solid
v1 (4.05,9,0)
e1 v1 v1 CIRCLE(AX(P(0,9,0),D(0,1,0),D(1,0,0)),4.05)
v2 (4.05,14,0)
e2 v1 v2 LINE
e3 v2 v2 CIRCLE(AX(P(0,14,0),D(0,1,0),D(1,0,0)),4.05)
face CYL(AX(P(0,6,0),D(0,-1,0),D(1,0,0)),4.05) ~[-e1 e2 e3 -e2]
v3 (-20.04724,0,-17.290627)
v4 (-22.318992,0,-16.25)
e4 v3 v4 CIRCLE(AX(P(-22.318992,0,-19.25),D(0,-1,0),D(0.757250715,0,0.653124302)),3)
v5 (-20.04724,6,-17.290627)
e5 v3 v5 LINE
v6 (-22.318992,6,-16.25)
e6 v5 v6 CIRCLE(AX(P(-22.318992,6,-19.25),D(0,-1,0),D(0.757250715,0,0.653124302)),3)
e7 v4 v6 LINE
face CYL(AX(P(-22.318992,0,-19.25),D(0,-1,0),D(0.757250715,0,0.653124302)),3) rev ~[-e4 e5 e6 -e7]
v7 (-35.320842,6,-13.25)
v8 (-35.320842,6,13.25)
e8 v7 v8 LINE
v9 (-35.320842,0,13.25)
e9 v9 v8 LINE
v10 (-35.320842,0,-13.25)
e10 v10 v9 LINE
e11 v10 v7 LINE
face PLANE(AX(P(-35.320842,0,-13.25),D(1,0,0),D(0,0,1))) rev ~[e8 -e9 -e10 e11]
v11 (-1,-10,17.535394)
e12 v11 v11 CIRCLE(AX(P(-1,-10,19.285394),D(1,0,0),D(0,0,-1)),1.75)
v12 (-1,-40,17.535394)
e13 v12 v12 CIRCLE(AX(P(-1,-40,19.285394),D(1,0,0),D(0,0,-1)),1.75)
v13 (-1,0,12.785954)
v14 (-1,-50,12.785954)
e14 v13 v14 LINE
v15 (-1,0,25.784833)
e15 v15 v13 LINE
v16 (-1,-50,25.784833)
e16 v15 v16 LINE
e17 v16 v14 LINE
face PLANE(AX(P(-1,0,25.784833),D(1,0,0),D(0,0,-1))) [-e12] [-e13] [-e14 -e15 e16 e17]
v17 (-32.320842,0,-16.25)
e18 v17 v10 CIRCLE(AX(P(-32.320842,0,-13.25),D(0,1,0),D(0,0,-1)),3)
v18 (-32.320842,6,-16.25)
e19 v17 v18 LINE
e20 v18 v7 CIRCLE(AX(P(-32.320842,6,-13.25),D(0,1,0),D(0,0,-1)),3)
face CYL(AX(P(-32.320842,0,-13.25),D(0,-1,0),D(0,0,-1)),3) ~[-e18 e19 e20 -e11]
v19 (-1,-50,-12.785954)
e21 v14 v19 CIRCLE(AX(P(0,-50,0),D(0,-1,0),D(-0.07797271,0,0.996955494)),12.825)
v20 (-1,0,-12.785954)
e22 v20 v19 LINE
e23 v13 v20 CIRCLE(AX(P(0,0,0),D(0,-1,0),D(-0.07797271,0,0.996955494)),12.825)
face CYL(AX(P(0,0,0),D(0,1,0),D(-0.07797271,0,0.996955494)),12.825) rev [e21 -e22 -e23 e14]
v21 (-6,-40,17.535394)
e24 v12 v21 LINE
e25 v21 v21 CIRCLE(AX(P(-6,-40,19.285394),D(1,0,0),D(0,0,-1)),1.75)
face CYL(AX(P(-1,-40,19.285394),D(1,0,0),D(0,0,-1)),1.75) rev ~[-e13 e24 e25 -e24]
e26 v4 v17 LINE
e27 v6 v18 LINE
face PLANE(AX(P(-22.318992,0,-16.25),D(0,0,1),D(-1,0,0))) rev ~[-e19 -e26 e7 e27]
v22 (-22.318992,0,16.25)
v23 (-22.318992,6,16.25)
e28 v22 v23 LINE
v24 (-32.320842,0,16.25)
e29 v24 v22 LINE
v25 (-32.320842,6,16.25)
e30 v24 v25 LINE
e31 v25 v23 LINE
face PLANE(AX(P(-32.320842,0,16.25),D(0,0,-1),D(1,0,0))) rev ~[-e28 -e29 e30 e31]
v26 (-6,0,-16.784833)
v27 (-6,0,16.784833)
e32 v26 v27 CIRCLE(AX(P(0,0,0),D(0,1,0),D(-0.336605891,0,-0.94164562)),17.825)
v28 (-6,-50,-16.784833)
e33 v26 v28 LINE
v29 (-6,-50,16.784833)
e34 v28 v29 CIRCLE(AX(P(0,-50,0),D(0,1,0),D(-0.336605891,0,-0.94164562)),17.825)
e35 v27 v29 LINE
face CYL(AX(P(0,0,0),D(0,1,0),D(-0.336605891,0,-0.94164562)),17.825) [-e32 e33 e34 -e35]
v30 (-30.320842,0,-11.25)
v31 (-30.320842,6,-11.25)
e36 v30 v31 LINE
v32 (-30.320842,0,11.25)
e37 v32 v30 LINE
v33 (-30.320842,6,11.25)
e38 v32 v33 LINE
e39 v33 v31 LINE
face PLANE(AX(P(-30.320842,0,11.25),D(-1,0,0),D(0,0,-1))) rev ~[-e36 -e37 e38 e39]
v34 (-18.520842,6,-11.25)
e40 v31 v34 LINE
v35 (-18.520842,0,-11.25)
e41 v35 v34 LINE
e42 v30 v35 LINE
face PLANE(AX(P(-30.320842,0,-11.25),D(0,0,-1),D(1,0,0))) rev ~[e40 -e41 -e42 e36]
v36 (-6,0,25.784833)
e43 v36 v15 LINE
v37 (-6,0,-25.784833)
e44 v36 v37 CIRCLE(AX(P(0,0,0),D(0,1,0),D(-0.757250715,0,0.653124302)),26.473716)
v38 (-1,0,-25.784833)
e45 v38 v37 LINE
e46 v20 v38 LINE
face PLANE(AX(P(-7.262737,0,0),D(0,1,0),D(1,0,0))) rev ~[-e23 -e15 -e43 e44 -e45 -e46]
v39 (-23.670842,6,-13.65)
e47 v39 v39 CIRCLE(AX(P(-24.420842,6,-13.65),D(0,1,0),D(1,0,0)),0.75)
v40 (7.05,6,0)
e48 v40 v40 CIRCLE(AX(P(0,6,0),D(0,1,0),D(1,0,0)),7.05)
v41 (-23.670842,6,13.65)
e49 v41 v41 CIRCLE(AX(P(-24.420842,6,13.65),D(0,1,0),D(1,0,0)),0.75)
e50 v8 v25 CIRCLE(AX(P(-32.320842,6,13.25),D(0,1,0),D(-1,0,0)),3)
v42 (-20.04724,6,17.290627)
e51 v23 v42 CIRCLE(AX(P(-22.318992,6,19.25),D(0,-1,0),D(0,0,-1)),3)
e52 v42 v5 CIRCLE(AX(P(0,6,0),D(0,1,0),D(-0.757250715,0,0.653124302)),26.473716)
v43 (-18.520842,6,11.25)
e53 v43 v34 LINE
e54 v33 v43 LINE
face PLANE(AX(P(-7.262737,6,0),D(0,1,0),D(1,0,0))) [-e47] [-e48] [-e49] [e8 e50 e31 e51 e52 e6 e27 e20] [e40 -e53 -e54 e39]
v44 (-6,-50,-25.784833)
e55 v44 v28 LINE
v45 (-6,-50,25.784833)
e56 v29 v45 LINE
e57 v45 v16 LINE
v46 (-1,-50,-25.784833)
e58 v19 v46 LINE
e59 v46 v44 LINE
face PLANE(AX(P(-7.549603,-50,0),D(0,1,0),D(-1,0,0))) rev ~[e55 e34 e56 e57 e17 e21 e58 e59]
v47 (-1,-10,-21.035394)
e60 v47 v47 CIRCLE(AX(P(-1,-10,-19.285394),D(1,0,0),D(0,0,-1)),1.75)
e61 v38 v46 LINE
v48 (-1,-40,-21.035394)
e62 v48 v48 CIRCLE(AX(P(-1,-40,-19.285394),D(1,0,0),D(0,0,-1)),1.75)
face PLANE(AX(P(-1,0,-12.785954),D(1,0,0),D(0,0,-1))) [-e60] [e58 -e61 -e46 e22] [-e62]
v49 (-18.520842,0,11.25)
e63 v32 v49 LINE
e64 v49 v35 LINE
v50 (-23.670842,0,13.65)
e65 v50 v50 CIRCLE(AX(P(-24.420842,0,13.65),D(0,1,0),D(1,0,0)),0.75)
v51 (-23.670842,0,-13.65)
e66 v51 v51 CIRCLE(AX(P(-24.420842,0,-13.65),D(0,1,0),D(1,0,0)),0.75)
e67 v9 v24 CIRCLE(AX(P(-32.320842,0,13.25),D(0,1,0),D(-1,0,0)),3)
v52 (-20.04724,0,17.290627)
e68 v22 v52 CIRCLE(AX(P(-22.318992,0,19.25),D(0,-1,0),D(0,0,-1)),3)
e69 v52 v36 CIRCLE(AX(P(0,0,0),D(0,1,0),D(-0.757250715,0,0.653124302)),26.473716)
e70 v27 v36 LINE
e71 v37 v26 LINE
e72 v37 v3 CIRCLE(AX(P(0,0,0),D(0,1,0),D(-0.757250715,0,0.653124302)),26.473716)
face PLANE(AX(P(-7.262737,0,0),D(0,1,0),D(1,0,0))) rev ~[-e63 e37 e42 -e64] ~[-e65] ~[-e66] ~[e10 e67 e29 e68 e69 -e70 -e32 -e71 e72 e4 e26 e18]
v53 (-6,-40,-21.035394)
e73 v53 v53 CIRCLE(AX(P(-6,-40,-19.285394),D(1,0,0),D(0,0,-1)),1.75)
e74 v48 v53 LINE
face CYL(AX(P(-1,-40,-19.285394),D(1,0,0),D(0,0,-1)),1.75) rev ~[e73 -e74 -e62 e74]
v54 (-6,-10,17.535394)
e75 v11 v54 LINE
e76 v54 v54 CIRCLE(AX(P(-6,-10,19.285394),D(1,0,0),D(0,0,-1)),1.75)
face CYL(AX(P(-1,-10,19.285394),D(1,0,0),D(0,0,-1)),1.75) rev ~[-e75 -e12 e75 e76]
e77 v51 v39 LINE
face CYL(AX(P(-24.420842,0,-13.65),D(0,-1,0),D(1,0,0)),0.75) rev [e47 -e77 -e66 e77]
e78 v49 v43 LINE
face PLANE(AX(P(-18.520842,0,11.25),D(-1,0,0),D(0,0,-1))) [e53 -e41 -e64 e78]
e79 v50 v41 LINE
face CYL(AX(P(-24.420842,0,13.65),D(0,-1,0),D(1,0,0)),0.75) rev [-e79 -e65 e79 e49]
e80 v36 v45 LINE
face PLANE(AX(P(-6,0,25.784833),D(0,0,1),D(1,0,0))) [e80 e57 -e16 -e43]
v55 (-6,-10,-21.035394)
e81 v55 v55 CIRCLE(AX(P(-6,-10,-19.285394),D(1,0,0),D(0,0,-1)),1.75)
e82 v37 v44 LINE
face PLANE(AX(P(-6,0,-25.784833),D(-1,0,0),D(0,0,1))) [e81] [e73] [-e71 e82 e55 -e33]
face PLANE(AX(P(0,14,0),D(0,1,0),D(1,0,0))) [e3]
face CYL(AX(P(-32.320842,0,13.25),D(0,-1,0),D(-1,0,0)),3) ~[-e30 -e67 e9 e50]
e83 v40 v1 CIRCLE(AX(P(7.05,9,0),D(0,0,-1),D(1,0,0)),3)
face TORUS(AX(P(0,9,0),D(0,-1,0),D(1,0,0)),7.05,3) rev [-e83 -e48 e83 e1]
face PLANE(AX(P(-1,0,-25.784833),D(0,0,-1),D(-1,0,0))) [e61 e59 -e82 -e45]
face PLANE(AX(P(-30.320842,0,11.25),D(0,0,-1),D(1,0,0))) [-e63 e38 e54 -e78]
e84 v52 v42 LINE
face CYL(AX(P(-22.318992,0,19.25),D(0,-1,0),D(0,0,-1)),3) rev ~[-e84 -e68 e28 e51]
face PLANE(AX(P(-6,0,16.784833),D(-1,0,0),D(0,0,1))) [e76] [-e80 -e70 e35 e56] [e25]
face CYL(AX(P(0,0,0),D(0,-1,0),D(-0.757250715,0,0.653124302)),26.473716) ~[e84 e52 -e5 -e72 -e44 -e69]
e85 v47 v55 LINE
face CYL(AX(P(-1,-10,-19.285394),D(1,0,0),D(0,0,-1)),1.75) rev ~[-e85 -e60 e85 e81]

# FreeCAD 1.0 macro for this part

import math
import FreeCAD as App
import Part
import Sketcher


def edges_at(feature, points):
    """Names of the edges that pass closest to the given points."""
    edges = feature.Shape.Edges
    near = lambda p: min(range(len(edges)), key=lambda i: edges[i].distToShape(Part.Vertex(*p))[0])
    return sorted({f"Edge{near(p) + 1}" for p in points})


def add_polygon(sketch, points):
    """Adds a closed chain of lines whose ends are joined by coincident constraints."""
    first, n = sketch.GeometryCount, len(points)
    for a, b in zip(points, points[1:] + points[:1]):
        sketch.addGeometry(Part.LineSegment(App.Vector(*a, 0), App.Vector(*b, 0)), False)
    for i in range(n):
        sketch.addConstraint(Sketcher.Constraint("Coincident", first + i, 2, first + (i + 1) % n, 1))

doc = App.newDocument("Part")
body = doc.addObject("PartDesign::Body", "Body")

# Sketch on XZ plane
sketch1 = body.newObject("Sketcher::SketchObject", "Sketch")
sketch1.AttachmentSupport = (doc.getObject("XZ_Plane"), [""])
sketch1.MapMode = "FlatFace"
sketch1.addGeometry(Part.LineSegment(App.Vector(-1, 13, 0), App.Vector(-1, 26, 0)), False)
sketch1.addGeometry(Part.LineSegment(App.Vector(-1, 26, 0), App.Vector(-6, 26, 0)), False)
sketch1.addGeometry(Part.LineSegment(App.Vector(-6, 26, 0), App.Vector(-6, 17, 0)), False)
sketch1.addGeometry(Part.ArcOfCircle(Part.Circle(App.Vector(0, 0, 0), App.Vector(0, 0, 1), 18), math.radians(110), math.radians(250)), False)
sketch1.addGeometry(Part.LineSegment(App.Vector(-6, -17, 0), App.Vector(-6, -26, 0)), False)
sketch1.addGeometry(Part.LineSegment(App.Vector(-6, -26, 0), App.Vector(-1, -26, 0)), False)
sketch1.addGeometry(Part.LineSegment(App.Vector(-1, -26, 0), App.Vector(-1, -13, 0)), False)
sketch1.addGeometry(Part.ArcOfCircle(Part.Circle(App.Vector(0, 0, 0), App.Vector(0, 0, 1), 13), math.radians(94), math.radians(266)), False)
sketch1.addConstraint(Sketcher.Constraint("Coincident", 0, 2, 1, 1))
sketch1.addConstraint(Sketcher.Constraint("Coincident", 1, 2, 2, 1))
sketch1.addConstraint(Sketcher.Constraint("Coincident", 2, 2, 3, 1))
sketch1.addConstraint(Sketcher.Constraint("Coincident", 3, 2, 4, 1))
sketch1.addConstraint(Sketcher.Constraint("Coincident", 4, 2, 5, 1))
sketch1.addConstraint(Sketcher.Constraint("Coincident", 5, 2, 6, 1))
sketch1.addConstraint(Sketcher.Constraint("Coincident", 6, 2, 7, 2))
sketch1.addConstraint(Sketcher.Constraint("Coincident", 7, 1, 0, 1))
sketch1.addConstraint(Sketcher.Constraint("Vertical", 0))
sketch1.addConstraint(Sketcher.Constraint("Horizontal", 1))
sketch1.addConstraint(Sketcher.Constraint("Vertical", 2))
sketch1.addConstraint(Sketcher.Constraint("Vertical", 4))
sketch1.addConstraint(Sketcher.Constraint("Horizontal", 5))
sketch1.addConstraint(Sketcher.Constraint("Vertical", 6))
sketch1.addConstraint(Sketcher.Constraint("Coincident", 3, 3, -1, 1))
sketch1.addConstraint(Sketcher.Constraint("Coincident", 7, 3, -1, 1))
sketch1.addConstraint(Sketcher.Constraint("Symmetric", 1, 2, 4, 2, -1))
sketch1.addConstraint(Sketcher.Constraint("Vertical", 0, 2, 5, 2))
sketch1.addConstraint(Sketcher.Constraint("DistanceX", 1, 2, 1, 1, 5.0))
sketch1.addConstraint(Sketcher.Constraint("DistanceY", 2, 2, 2, 1, 9.0))
sketch1.addConstraint(Sketcher.Constraint("DistanceX", 0, 2, -1, 1, 1.0))
sketch1.addConstraint(Sketcher.Constraint("Radius", 3, 17.825))
sketch1.addConstraint(Sketcher.Constraint("Radius", 7, 12.825))
pad1 = body.newObject("PartDesign::Pad", "Pad")
pad1.Profile = sketch1
pad1.Length = 50

# Sketch on YZ plane
sketch2 = body.newObject("Sketcher::SketchObject", "Sketch001")
sketch2.AttachmentSupport = (doc.getObject("YZ_Plane"), [""])
sketch2.MapMode = "FlatFace"
sketch2.AttachmentOffset = App.Placement(App.Vector(0, 0, -1), App.Rotation())
sketch2.addGeometry(Part.Circle(App.Vector(-10, 19.3, 0), App.Vector(0, 0, 1), 1.8), False)
sketch2.addGeometry(Part.Circle(App.Vector(-40, 19.3, 0), App.Vector(0, 0, 1), 1.8), False)
sketch2.addGeometry(Part.Circle(App.Vector(-40, -19.3, 0), App.Vector(0, 0, 1), 1.8), False)
sketch2.addGeometry(Part.Circle(App.Vector(-10, -19.3, 0), App.Vector(0, 0, 1), 1.8), False)
sketch2.addConstraint(Sketcher.Constraint("Equal", 0, 1))
sketch2.addConstraint(Sketcher.Constraint("Equal", 1, 2))
sketch2.addConstraint(Sketcher.Constraint("Equal", 2, 3))
sketch2.addConstraint(Sketcher.Constraint("Symmetric", 1, 3, 2, 3, -1))
sketch2.addConstraint(Sketcher.Constraint("Symmetric", 0, 3, 3, 3, -1))
sketch2.addConstraint(Sketcher.Constraint("Horizontal", 0, 3, 1, 3))
sketch2.addConstraint(Sketcher.Constraint("Diameter", 0, 3.5))
sketch2.addConstraint(Sketcher.Constraint("DistanceX", 0, 3, -1, 1, 10.0))
sketch2.addConstraint(Sketcher.Constraint("DistanceX", 1, 3, -1, 1, 40.0))
sketch2.addConstraint(Sketcher.Constraint("DistanceY", -1, 1, 0, 3, 19.285394))
pocket1 = body.newObject("PartDesign::Pocket", "Pocket")
pocket1.Profile = sketch2
pocket1.Type = "ThroughAll"

# Sketch on XZ plane
sketch3 = body.newObject("Sketcher::SketchObject", "Sketch002")
sketch3.AttachmentSupport = (doc.getObject("XZ_Plane"), [""])
sketch3.MapMode = "FlatFace"
sketch3.addGeometry(Part.LineSegment(App.Vector(-32.3, 16.2, 0), App.Vector(-22.3, 16.2, 0)), False)  # 0
sketch3.addGeometry(Part.ArcOfCircle(Part.Circle(App.Vector(-22.3, 19.3, 0), App.Vector(0, 0, 1), 3), math.radians(-90), math.radians(-41)), False)  # 1
sketch3.addGeometry(Part.ArcOfCircle(Part.Circle(App.Vector(0, 0, 0), App.Vector(0, 0, 1), 26.5), math.radians(-139), math.radians(139)), False)  # 2
sketch3.addGeometry(Part.ArcOfCircle(Part.Circle(App.Vector(-22.3, -19.3, 0), App.Vector(0, 0, 1), 3), math.radians(41), math.radians(90)), False)  # 3
sketch3.addGeometry(Part.LineSegment(App.Vector(-22.3, -16.2, 0), App.Vector(-32.3, -16.2, 0)), False)  # 4
sketch3.addGeometry(Part.ArcOfCircle(Part.Circle(App.Vector(-32.3, -13.2, 0), App.Vector(0, 0, 1), 3), math.radians(180), math.radians(270)), False)  # 5
sketch3.addGeometry(Part.LineSegment(App.Vector(-35.3, -13.2, 0), App.Vector(-35.3, 13.2, 0)), False)  # 6
sketch3.addGeometry(Part.ArcOfCircle(Part.Circle(App.Vector(-32.3, 13.2, 0), App.Vector(0, 0, 1), 3), math.radians(90), math.radians(180)), False)  # 7
sketch3.addGeometry(Part.Circle(App.Vector(-24.4, 13.7, 0), App.Vector(0, 0, 1), 0.8), False)  # 8
add_polygon(sketch3, [(-18.5, 11.2), (-30.3, 11.2), (-30.3, -11.2), (-18.5, -11.2)])  # lines 9-12
sketch3.addGeometry(Part.Circle(App.Vector(-24.4, -13.7, 0), App.Vector(0, 0, 1), 0.8), False)  # 13
sketch3.addConstraint(Sketcher.Constraint("Tangent", 0, 2, 1, 1))
sketch3.addConstraint(Sketcher.Constraint("Tangent", 1, 2, 2, 2))
sketch3.addConstraint(Sketcher.Constraint("Tangent", 2, 1, 3, 1))
sketch3.addConstraint(Sketcher.Constraint("Tangent", 3, 2, 4, 1))
sketch3.addConstraint(Sketcher.Constraint("Tangent", 4, 2, 5, 2))
sketch3.addConstraint(Sketcher.Constraint("Tangent", 5, 1, 6, 1))
sketch3.addConstraint(Sketcher.Constraint("Tangent", 6, 2, 7, 2))
sketch3.addConstraint(Sketcher.Constraint("Tangent", 7, 1, 0, 1))
sketch3.addConstraint(Sketcher.Constraint("Horizontal", 0))
sketch3.addConstraint(Sketcher.Constraint("Horizontal", 4))
sketch3.addConstraint(Sketcher.Constraint("Vertical", 6))
sketch3.addConstraint(Sketcher.Constraint("Horizontal", 9))
sketch3.addConstraint(Sketcher.Constraint("Vertical", 10))
sketch3.addConstraint(Sketcher.Constraint("Horizontal", 11))
sketch3.addConstraint(Sketcher.Constraint("Vertical", 12))
sketch3.addConstraint(Sketcher.Constraint("Coincident", 2, 3, -1, 1))
sketch3.addConstraint(Sketcher.Constraint("Equal", 1, 3))
sketch3.addConstraint(Sketcher.Constraint("Equal", 3, 5))
sketch3.addConstraint(Sketcher.Constraint("Equal", 5, 7))
sketch3.addConstraint(Sketcher.Constraint("Equal", 8, 13))
sketch3.addConstraint(Sketcher.Constraint("Symmetric", 8, 3, 13, 3, -1))
sketch3.addConstraint(Sketcher.Constraint("Vertical", 1, 3, 3, 3))
sketch3.addConstraint(Sketcher.Constraint("Radius", 1, 3.0))
sketch3.addConstraint(Sketcher.Constraint("Diameter", 8, 1.5))
sketch3.addConstraint(Sketcher.Constraint("DistanceX", 9, 2, 9, 1, 11.8))
sketch3.addConstraint(Sketcher.Constraint("DistanceY", 6, 1, 6, 2, 26.5))
sketch3.addConstraint(Sketcher.Constraint("DistanceY", 10, 2, 10, 1, 22.5))
sketch3.addConstraint(Sketcher.Constraint("DistanceX", 7, 3, 9, 2, 2.0))
sketch3.addConstraint(Sketcher.Constraint("DistanceY", 9, 2, 7, 3, 2.0))
sketch3.addConstraint(Sketcher.Constraint("DistanceY", 8, 3, 1, 3, 5.6))
sketch3.addConstraint(Sketcher.Constraint("DistanceX", 7, 3, 8, 3, 7.9))
sketch3.addConstraint(Sketcher.Constraint("Radius", 2, 26.473716))
sketch3.addConstraint(Sketcher.Constraint("DistanceX", 0, 1, 0, 2, 10.001849))
pad2 = body.newObject("PartDesign::Pad", "Pad001")
pad2.Profile = sketch3
pad2.Length = 6
pad2.Reversed = True

# Sketch on XZ plane
sketch4 = body.newObject("Sketcher::SketchObject", "Sketch003")
sketch4.AttachmentSupport = (doc.getObject("XZ_Plane"), [""])
sketch4.MapMode = "FlatFace"
sketch4.AttachmentOffset = App.Placement(App.Vector(0, 0, -6), App.Rotation())
sketch4.addGeometry(Part.Circle(App.Vector(0, 0, 0), App.Vector(0, 0, 1), 4), False)
sketch4.addConstraint(Sketcher.Constraint("Coincident", 0, 3, -1, 1))
sketch4.addConstraint(Sketcher.Constraint("Diameter", 0, 8.1))
pad3 = body.newObject("PartDesign::Pad", "Pad002")
pad3.Profile = sketch4
pad3.Length = 8
pad3.Reversed = True
doc.recompute()

fillet = body.newObject("PartDesign::Fillet", "Fillet")
fillet.Base = (pad3, edges_at(pad3, [(-4.05, 6, 0)]))
fillet.Radius = 3

doc.recompute()
